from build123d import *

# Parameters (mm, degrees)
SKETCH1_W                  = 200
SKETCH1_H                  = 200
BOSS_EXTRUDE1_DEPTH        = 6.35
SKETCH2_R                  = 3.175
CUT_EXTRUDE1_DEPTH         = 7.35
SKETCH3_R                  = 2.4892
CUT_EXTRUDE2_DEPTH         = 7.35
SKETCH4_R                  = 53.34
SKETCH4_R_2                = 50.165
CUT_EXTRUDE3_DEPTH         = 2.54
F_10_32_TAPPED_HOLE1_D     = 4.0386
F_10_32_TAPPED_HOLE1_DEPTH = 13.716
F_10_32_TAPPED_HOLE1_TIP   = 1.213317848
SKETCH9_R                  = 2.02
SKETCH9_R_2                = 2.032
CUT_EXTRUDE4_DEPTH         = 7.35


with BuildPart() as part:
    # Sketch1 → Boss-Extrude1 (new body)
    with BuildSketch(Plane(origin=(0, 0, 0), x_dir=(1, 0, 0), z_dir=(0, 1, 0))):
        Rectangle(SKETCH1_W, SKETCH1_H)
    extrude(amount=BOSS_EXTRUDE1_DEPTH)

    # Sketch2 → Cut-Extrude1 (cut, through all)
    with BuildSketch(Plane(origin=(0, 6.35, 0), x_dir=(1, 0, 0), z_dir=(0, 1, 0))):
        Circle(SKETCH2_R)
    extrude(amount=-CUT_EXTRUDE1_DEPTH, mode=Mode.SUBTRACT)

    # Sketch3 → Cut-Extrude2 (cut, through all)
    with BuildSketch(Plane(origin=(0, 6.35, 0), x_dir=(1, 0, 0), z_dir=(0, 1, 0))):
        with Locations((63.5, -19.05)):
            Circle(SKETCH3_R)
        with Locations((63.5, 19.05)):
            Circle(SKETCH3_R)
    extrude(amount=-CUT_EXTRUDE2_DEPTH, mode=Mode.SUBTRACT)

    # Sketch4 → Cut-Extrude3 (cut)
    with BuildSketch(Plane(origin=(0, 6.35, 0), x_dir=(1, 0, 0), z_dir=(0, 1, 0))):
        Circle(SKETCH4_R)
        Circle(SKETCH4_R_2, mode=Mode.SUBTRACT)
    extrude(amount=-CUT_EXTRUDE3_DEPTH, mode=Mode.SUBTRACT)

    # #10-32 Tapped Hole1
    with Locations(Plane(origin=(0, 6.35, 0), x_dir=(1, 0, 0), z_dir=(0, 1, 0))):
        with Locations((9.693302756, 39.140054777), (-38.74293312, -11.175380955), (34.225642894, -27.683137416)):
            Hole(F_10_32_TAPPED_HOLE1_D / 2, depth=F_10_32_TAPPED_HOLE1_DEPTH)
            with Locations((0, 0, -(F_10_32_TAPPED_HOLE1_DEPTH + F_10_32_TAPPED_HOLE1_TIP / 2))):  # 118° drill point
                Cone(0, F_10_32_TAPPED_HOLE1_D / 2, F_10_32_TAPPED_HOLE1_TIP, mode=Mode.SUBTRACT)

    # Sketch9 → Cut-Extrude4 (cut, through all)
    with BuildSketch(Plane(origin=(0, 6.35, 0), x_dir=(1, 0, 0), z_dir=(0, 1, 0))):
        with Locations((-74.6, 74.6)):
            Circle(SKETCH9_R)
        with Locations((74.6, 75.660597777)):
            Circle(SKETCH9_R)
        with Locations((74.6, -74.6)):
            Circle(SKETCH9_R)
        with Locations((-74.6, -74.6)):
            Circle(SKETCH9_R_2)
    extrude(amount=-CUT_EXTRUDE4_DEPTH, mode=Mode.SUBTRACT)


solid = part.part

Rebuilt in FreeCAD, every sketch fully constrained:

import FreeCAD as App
import Part
import Sketcher
from FreeCAD import Vector
Q = App.Units.Quantity


def add_polygon(sketch, points):
    """Adds a closed chain of lines whose ends are joined by coincident constraints."""
    first, n = sketch.GeometryCount, len(points)
    for a, b in zip(points, points[1:] + points[:1]):
        sketch.addGeometry(Part.LineSegment(App.Vector(*a, 0), App.Vector(*b, 0)), False)
    for i in range(n):
        sketch.addConstraint(Sketcher.Constraint("Coincident", first + i, 2, first + (i + 1) % n, 1))

doc = App.newDocument("Part")
body = doc.addObject("PartDesign::Body", "Body")

sketch1 = body.newObject("Sketcher::SketchObject", "Sketch")
sketch1.AttachmentSupport = (doc.getObject("XZ_Plane"), [""])
sketch1.MapMode = "FlatFace"
add_polygon(sketch1, [(-100, -100), (-100, 100), (100, 100), (100, -100)])
sketch1.addConstraint([
    Sketcher.Constraint("Vertical", 0),
    Sketcher.Constraint("Horizontal", 1),
    Sketcher.Constraint("Vertical", 2),
    Sketcher.Constraint("Horizontal", 3),
    Sketcher.Constraint("Symmetric", 0, 2, 2, 2, -1, 1),
    Sketcher.Constraint("Equal", 3, 0),
    Sketcher.Constraint("DistanceX", 1, 1, 1, 2, 200.0),
])
pad1 = body.newObject("PartDesign::Pad", "Pad")
pad1.Profile = sketch1
pad1.Length = Q("0.25 in")
pad1.Reversed = True

sketch2 = body.newObject("Sketcher::SketchObject", "Sketch001")
sketch2.AttachmentSupport = (doc.getObject("XZ_Plane"), [""])
sketch2.MapMode = "FlatFace"
sketch2.AttachmentOffset = App.Placement(Vector(0, 0, -0.25 * 25.4), App.Rotation())
sketch2.addGeometry(Part.Circle(Vector(0, 0, 0), Vector(0, 0, 1), 3.2), False)
sketch2.addConstraint([
    Sketcher.Constraint("Coincident", 0, 3, -1, 1),
    Sketcher.Constraint("Diameter", 0, Q("0.25 in")),
])
pocket1 = body.newObject("PartDesign::Pocket", "Pocket")
pocket1.Profile = sketch2
pocket1.Type = "ThroughAll"
pocket1.Reversed = True

sketch3 = body.newObject("Sketcher::SketchObject", "Sketch002")
sketch3.AttachmentSupport = (doc.getObject("XZ_Plane"), [""])
sketch3.MapMode = "FlatFace"
sketch3.AttachmentOffset = App.Placement(Vector(0, 0, -0.25 * 25.4), App.Rotation())
sketch3.addGeometry([
    Part.Circle(Vector(63.5, 19.1, 0), Vector(0, 0, 1), 2.5),
    Part.Circle(Vector(63.5, -19.1, 0), Vector(0, 0, 1), 2.5),
], False)
sketch3.addConstraint([
    Sketcher.Constraint("Equal", 0, 1),
    Sketcher.Constraint("Symmetric", 0, 3, 1, 3, -1),
    Sketcher.Constraint("Diameter", 0, Q("0.196 in")),
    Sketcher.Constraint("DistanceX", -1, 1, 0, 3, Q("2.5 in")),
    Sketcher.Constraint("DistanceY", 1, 3, 0, 3, Q("1.5 in")),
])
pocket2 = body.newObject("PartDesign::Pocket", "Pocket001")
pocket2.Profile = sketch3
pocket2.Type = "ThroughAll"
pocket2.Reversed = True

sketch4 = body.newObject("Sketcher::SketchObject", "Sketch003")
sketch4.AttachmentSupport = (doc.getObject("XZ_Plane"), [""])
sketch4.MapMode = "FlatFace"
sketch4.AttachmentOffset = App.Placement(Vector(0, 0, -0.25 * 25.4), App.Rotation())
sketch4.addGeometry([
    Part.Circle(Vector(0, 0, 0), Vector(0, 0, 1), 53),
    Part.Circle(Vector(0, 0, 0), Vector(0, 0, 1), 50),
], False)
sketch4.addConstraint([
    Sketcher.Constraint("Coincident", 0, 3, -1, 1),
    Sketcher.Constraint("Coincident", 1, 3, -1, 1),
    Sketcher.Constraint("Diameter", 0, Q("4.2 in")),
    Sketcher.Constraint("Diameter", 1, Q("3.95 in")),
])
pocket3 = body.newObject("PartDesign::Pocket", "Pocket002")
pocket3.Profile = sketch4
pocket3.Length = Q("0.1 in")
pocket3.Reversed = True

sketch5 = body.newObject("Sketcher::SketchObject", "Sketch004")
sketch5.AttachmentSupport = (doc.getObject("XZ_Plane"), [""])
sketch5.MapMode = "FlatFace"
sketch5.AttachmentOffset = App.Placement(Vector(0, 0, -0.25 * 25.4), App.Rotation())
sketch5.addGeometry([
    Part.Circle(Vector(9.7, -39.1, 0), Vector(0, 0, 1), 2),
    Part.Circle(Vector(-38.7, 11.2, 0), Vector(0, 0, 1), 2),
    Part.Circle(Vector(34.2, 27.7, 0), Vector(0, 0, 1), 2),
], False)
sketch5.addConstraint([
    Sketcher.Constraint("Equal", 0, 1),
    Sketcher.Constraint("Equal", 1, 2),
    Sketcher.Constraint("Diameter", 0, Q("0.159 in")),
    Sketcher.Constraint("DistanceY", -1, 1, 1, 3, 11.175381),
    Sketcher.Constraint("DistanceX", 0, 3, 2, 3, 24.53234),
    Sketcher.Constraint("DistanceX", -1, 1, 0, 3, 9.693303),
    Sketcher.Constraint("DistanceY", 0, 3, -1, 1, 39.140055),
    Sketcher.Constraint("DistanceX", 1, 3, -1, 1, 38.742933),
    Sketcher.Constraint("DistanceY", -1, 1, 2, 3, 27.683137),
])
doc.recompute()
hole = body.newObject("PartDesign::Hole", "Hole")
hole.Profile = sketch5
hole.ThreadType = "None"
hole.Diameter = Q("0.159 in")
hole.DepthType = "Dimension"
hole.Depth = Q("0.54 in")
hole.DrillPoint = "Angled"
hole.DrillPointAngle = 118
hole.Reversed = True

sketch6 = body.newObject("Sketcher::SketchObject", "Sketch005")
sketch6.AttachmentSupport = (doc.getObject("XZ_Plane"), [""])
sketch6.MapMode = "FlatFace"
sketch6.AttachmentOffset = App.Placement(Vector(0, 0, -0.25 * 25.4), App.Rotation())
sketch6.addGeometry([
    Part.Circle(Vector(-74.6, -74.6, 0), Vector(0, 0, 1), 2),
    Part.Circle(Vector(74.6, -75.7, 0), Vector(0, 0, 1), 2),
    Part.Circle(Vector(74.6, 74.6, 0), Vector(0, 0, 1), 2),
    Part.Circle(Vector(-74.6, 74.6, 0), Vector(0, 0, 1), 2),
], False)
sketch6.addConstraint([
    Sketcher.Constraint("Equal", 0, 1),
    Sketcher.Constraint("Equal", 1, 2),
    Sketcher.Constraint("Symmetric", 0, 3, 2, 3, -1, 1),
    Sketcher.Constraint("Symmetric", 2, 3, 3, 3, -2),
    Sketcher.Constraint("Vertical", 1, 3, 2, 3),
    Sketcher.Constraint("Diameter", 3, Q("0.16 in")),
    Sketcher.Constraint("Diameter", 0, 4.04),
    Sketcher.Constraint("DistanceX", 0, 3, -1, 1, 74.6),
    Sketcher.Constraint("DistanceY", 0, 3, -1, 1, 74.6),
    Sketcher.Constraint("DistanceY", 1, 3, -1, 1, 75.660598),
])
pocket4 = body.newObject("PartDesign::Pocket", "Pocket003")
pocket4.Profile = sketch6
pocket4.Type = "ThroughAll"
pocket4.Reversed = True

doc.recompute()
